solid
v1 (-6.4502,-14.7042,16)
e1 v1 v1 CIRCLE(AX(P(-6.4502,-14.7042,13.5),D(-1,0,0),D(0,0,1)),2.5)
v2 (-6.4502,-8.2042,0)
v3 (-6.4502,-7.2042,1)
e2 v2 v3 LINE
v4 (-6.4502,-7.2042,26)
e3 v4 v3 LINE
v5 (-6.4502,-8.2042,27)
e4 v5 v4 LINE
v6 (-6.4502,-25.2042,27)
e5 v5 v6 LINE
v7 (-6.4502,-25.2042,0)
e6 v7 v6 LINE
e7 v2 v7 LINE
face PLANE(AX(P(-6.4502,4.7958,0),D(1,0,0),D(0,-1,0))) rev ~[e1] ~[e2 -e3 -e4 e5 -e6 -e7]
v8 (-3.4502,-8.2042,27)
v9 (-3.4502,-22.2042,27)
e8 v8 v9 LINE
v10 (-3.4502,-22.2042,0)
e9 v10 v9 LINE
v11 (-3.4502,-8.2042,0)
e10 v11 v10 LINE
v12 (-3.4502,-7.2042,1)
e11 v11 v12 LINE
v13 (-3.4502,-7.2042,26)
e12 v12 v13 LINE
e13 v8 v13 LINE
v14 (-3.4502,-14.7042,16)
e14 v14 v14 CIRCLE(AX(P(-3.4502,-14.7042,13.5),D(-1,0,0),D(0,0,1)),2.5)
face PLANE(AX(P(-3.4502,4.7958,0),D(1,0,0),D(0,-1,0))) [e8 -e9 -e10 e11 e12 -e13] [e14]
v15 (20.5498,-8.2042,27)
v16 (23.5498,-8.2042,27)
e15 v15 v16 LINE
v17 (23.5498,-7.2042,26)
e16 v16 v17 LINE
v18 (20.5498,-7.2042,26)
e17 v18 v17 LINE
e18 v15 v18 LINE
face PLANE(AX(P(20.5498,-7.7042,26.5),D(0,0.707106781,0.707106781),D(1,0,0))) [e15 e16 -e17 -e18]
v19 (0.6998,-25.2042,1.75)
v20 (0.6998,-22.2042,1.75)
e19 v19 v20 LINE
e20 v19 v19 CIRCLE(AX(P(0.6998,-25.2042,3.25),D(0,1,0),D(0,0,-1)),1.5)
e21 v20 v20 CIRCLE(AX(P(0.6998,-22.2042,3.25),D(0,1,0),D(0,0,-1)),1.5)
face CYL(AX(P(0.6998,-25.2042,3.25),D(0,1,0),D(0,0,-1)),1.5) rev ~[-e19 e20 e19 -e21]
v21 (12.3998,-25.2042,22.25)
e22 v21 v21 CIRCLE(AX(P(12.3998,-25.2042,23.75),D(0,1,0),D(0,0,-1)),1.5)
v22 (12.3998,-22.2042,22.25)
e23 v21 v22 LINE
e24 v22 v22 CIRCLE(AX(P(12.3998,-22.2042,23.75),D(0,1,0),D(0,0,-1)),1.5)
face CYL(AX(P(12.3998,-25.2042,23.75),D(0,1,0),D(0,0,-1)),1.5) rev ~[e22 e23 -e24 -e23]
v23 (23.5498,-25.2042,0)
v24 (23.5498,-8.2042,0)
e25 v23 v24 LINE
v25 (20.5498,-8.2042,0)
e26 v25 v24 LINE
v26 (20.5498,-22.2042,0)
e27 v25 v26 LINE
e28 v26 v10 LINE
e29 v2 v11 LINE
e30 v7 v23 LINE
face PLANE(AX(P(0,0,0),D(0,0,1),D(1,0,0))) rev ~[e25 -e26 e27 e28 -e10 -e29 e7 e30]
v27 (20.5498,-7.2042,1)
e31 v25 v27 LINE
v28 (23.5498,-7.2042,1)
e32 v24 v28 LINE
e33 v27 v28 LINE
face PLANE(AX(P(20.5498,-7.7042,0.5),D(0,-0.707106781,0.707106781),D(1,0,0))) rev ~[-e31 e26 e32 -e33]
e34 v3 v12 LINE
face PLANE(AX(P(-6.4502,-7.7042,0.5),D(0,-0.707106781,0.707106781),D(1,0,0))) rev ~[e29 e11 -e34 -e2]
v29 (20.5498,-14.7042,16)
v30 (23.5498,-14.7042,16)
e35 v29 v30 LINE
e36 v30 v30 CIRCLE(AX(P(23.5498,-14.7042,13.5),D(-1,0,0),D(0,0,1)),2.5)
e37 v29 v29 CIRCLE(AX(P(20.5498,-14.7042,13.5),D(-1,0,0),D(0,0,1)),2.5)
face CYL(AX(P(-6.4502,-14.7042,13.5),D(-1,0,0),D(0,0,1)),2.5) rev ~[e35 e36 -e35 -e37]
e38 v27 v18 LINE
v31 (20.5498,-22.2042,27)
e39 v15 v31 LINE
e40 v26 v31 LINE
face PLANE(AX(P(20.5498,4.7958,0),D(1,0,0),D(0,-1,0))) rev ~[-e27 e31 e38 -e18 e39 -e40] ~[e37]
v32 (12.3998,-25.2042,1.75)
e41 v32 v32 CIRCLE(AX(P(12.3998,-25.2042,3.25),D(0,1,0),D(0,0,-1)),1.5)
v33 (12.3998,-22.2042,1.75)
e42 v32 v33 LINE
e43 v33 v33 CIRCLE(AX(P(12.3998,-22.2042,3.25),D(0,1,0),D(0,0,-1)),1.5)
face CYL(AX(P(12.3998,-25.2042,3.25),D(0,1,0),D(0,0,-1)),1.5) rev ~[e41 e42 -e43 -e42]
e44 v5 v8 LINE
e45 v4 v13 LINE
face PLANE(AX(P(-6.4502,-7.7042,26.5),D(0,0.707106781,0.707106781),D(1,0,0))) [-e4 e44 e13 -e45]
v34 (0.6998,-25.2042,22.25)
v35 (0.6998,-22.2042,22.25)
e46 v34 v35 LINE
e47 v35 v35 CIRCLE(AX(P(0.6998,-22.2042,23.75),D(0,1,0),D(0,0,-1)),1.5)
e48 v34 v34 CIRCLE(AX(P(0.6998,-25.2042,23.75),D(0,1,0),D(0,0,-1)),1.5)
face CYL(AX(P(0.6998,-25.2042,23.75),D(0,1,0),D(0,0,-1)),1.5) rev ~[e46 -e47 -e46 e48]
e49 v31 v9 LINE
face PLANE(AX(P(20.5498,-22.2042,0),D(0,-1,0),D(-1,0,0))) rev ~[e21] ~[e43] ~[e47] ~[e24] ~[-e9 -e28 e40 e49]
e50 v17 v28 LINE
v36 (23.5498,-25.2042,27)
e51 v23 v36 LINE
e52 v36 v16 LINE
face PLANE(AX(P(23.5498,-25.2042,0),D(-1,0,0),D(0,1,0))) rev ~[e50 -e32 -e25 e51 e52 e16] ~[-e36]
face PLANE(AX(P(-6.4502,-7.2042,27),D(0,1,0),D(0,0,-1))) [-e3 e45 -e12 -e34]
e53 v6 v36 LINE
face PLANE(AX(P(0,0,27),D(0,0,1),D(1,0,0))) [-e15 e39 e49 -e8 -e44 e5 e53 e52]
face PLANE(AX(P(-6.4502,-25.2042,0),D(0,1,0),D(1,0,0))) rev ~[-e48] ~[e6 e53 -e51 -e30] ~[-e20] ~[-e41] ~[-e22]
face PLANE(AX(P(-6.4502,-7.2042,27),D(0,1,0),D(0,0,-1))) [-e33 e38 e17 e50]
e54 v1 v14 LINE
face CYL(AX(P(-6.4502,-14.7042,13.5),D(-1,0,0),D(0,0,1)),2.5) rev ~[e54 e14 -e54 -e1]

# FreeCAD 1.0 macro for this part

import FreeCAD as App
import Part
import Sketcher


def edges_at(feature, points):
    """Names of the edges that pass closest to the given points."""
    edges = feature.Shape.Edges
    near = lambda p: min(range(len(edges)), key=lambda i: edges[i].distToShape(Part.Vertex(*p))[0])
    return sorted({f"Edge{near(p) + 1}" for p in points})


def add_polygon(sketch, points):
    """Adds a closed chain of lines whose ends are joined by coincident constraints."""
    first, n = sketch.GeometryCount, len(points)
    for a, b in zip(points, points[1:] + points[:1]):
        sketch.addGeometry(Part.LineSegment(App.Vector(*a, 0), App.Vector(*b, 0)), False)
    for i in range(n):
        sketch.addConstraint(Sketcher.Constraint("Coincident", first + i, 2, first + (i + 1) % n, 1))

doc = App.newDocument("Part")
body = doc.addObject("PartDesign::Body", "Body")

# Sketch on XY plane
sketch1 = body.newObject("Sketcher::SketchObject", "Sketch")
sketch1.AttachmentSupport = (doc.getObject("XY_Plane"), [""])
sketch1.MapMode = "FlatFace"
add_polygon(sketch1, [(-3.5, 4.8), (-6.5, 4.8), (-6.5, -25.2), (23.5, -25.2), (23.5, 4.8), (20.5, 4.8), (20.5, -22.2), (-3.5, -22.2)])  # lines 0-7
sketch1.addConstraint(Sketcher.Constraint("Horizontal", 0))
sketch1.addConstraint(Sketcher.Constraint("Vertical", 1))
sketch1.addConstraint(Sketcher.Constraint("Horizontal", 2))
sketch1.addConstraint(Sketcher.Constraint("Vertical", 3))
sketch1.addConstraint(Sketcher.Constraint("Horizontal", 4))
sketch1.addConstraint(Sketcher.Constraint("Vertical", 5))
sketch1.addConstraint(Sketcher.Constraint("Horizontal", 6))
sketch1.addConstraint(Sketcher.Constraint("Vertical", 7))
sketch1.addConstraint(Sketcher.Constraint("Horizontal", 0, 2, 3, 2))
sketch1.addConstraint(Sketcher.Constraint("Equal", 0, 4))
sketch1.addConstraint(Sketcher.Constraint("Equal", 2, 1))
sketch1.addConstraint(Sketcher.Constraint("DistanceX", 0, 2, 0, 1, 3.0))
sketch1.addConstraint(Sketcher.Constraint("DistanceX", 2, 1, 2, 2, 30.0))
sketch1.addConstraint(Sketcher.Constraint("DistanceY", 5, 2, 5, 1, 27.0))
sketch1.addConstraint(Sketcher.Constraint("DistanceX", 0, 2, -1, 1, 6.4502))
sketch1.addConstraint(Sketcher.Constraint("DistanceY", -1, 1, 0, 2, 4.7958))
pad1 = body.newObject("PartDesign::Pad", "Pad")
pad1.Profile = sketch1
pad1.Length = 27

# Sketch on YZ plane
sketch2 = body.newObject("Sketcher::SketchObject", "Sketch001")
sketch2.AttachmentSupport = (doc.getObject("YZ_Plane"), [""])
sketch2.MapMode = "FlatFace"
sketch2.AttachmentOffset = App.Placement(App.Vector(0, 0, -6.4502), App.Rotation())
add_polygon(sketch2, [(4.8, 27), (4.8, 0), (-7.2, 0), (-7.2, 27)])  # lines 0-3
sketch2.addGeometry(Part.Circle(App.Vector(-14.7, 13.5, 0), App.Vector(0, 0, 1), 2.5), False)  # 4
sketch2.addConstraint(Sketcher.Constraint("Vertical", 0))
sketch2.addConstraint(Sketcher.Constraint("Horizontal", 1))
sketch2.addConstraint(Sketcher.Constraint("Vertical", 2))
sketch2.addConstraint(Sketcher.Constraint("Horizontal", 3))
sketch2.addConstraint(Sketcher.Constraint("PointOnObject", 0, 2, -1))
sketch2.addConstraint(Sketcher.Constraint("Diameter", 4, 5.0))
sketch2.addConstraint(Sketcher.Constraint("DistanceY", 0, 2, 0, 1, 27.0))
sketch2.addConstraint(Sketcher.Constraint("DistanceY", -1, 1, 4, 3, 13.5))
sketch2.addConstraint(Sketcher.Constraint("DistanceX", 4, 3, 1, 2, 7.5))
sketch2.addConstraint(Sketcher.Constraint("DistanceX", 1, 2, 1, 1, 12.0))
sketch2.addConstraint(Sketcher.Constraint("DistanceX", 4, 3, -1, 1, 14.7042))
pocket1 = body.newObject("PartDesign::Pocket", "Pocket")
pocket1.Profile = sketch2
pocket1.Type = "ThroughAll"
pocket1.Reversed = True
doc.recompute()

chamfer = body.newObject("PartDesign::Chamfer", "Chamfer")
chamfer.Base = (pocket1, edges_at(pocket1, [
    (22.05, -7.204, 27),
    (-4.95, -7.204, 27),
    (22.05, -7.204, 0),
    (-4.95, -7.204, 0),
]))
chamfer.Size = 1

# Sketch on XZ plane
sketch3 = body.newObject("Sketcher::SketchObject", "Sketch002")
sketch3.AttachmentSupport = (doc.getObject("XZ_Plane"), [""])
sketch3.MapMode = "FlatFace"
sketch3.AttachmentOffset = App.Placement(App.Vector(0, 0, 25.2042), App.Rotation())
sketch3.addGeometry(Part.Circle(App.Vector(0.7, 23.8, 0), App.Vector(0, 0, 1), 1.5), False)
sketch3.addGeometry(Part.Circle(App.Vector(12.4, 23.8, 0), App.Vector(0, 0, 1), 1.5), False)
sketch3.addGeometry(Part.Circle(App.Vector(0.7, 3.2, 0), App.Vector(0, 0, 1), 1.5), False)
sketch3.addGeometry(Part.Circle(App.Vector(12.4, 3.2, 0), App.Vector(0, 0, 1), 1.5), False)
sketch3.addConstraint(Sketcher.Constraint("Equal", 0, 1))
sketch3.addConstraint(Sketcher.Constraint("Equal", 1, 2))
sketch3.addConstraint(Sketcher.Constraint("Equal", 2, 3))
sketch3.addConstraint(Sketcher.Constraint("Horizontal", 0, 3, 1, 3))
sketch3.addConstraint(Sketcher.Constraint("Horizontal", 2, 3, 3, 3))
sketch3.addConstraint(Sketcher.Constraint("Vertical", 0, 3, 2, 3))
sketch3.addConstraint(Sketcher.Constraint("Vertical", 1, 3, 3, 3))
sketch3.addConstraint(Sketcher.Constraint("Diameter", 0, 3.0))
sketch3.addConstraint(Sketcher.Constraint("DistanceX", 0, 3, 1, 3, 11.7))
sketch3.addConstraint(Sketcher.Constraint("DistanceY", 2, 3, 0, 3, 20.5))
sketch3.addConstraint(Sketcher.Constraint("DistanceY", -1, 1, 0, 3, 23.75))
sketch3.addConstraint(Sketcher.Constraint("DistanceX", -1, 1, 0, 3, 0.6998))
doc.recompute()
hole = body.newObject("PartDesign::Hole", "Hole")
hole.Profile = sketch3
hole.ThreadType = "None"
hole.Diameter = 3
hole.DepthType = "ThroughAll"

doc.recompute()
